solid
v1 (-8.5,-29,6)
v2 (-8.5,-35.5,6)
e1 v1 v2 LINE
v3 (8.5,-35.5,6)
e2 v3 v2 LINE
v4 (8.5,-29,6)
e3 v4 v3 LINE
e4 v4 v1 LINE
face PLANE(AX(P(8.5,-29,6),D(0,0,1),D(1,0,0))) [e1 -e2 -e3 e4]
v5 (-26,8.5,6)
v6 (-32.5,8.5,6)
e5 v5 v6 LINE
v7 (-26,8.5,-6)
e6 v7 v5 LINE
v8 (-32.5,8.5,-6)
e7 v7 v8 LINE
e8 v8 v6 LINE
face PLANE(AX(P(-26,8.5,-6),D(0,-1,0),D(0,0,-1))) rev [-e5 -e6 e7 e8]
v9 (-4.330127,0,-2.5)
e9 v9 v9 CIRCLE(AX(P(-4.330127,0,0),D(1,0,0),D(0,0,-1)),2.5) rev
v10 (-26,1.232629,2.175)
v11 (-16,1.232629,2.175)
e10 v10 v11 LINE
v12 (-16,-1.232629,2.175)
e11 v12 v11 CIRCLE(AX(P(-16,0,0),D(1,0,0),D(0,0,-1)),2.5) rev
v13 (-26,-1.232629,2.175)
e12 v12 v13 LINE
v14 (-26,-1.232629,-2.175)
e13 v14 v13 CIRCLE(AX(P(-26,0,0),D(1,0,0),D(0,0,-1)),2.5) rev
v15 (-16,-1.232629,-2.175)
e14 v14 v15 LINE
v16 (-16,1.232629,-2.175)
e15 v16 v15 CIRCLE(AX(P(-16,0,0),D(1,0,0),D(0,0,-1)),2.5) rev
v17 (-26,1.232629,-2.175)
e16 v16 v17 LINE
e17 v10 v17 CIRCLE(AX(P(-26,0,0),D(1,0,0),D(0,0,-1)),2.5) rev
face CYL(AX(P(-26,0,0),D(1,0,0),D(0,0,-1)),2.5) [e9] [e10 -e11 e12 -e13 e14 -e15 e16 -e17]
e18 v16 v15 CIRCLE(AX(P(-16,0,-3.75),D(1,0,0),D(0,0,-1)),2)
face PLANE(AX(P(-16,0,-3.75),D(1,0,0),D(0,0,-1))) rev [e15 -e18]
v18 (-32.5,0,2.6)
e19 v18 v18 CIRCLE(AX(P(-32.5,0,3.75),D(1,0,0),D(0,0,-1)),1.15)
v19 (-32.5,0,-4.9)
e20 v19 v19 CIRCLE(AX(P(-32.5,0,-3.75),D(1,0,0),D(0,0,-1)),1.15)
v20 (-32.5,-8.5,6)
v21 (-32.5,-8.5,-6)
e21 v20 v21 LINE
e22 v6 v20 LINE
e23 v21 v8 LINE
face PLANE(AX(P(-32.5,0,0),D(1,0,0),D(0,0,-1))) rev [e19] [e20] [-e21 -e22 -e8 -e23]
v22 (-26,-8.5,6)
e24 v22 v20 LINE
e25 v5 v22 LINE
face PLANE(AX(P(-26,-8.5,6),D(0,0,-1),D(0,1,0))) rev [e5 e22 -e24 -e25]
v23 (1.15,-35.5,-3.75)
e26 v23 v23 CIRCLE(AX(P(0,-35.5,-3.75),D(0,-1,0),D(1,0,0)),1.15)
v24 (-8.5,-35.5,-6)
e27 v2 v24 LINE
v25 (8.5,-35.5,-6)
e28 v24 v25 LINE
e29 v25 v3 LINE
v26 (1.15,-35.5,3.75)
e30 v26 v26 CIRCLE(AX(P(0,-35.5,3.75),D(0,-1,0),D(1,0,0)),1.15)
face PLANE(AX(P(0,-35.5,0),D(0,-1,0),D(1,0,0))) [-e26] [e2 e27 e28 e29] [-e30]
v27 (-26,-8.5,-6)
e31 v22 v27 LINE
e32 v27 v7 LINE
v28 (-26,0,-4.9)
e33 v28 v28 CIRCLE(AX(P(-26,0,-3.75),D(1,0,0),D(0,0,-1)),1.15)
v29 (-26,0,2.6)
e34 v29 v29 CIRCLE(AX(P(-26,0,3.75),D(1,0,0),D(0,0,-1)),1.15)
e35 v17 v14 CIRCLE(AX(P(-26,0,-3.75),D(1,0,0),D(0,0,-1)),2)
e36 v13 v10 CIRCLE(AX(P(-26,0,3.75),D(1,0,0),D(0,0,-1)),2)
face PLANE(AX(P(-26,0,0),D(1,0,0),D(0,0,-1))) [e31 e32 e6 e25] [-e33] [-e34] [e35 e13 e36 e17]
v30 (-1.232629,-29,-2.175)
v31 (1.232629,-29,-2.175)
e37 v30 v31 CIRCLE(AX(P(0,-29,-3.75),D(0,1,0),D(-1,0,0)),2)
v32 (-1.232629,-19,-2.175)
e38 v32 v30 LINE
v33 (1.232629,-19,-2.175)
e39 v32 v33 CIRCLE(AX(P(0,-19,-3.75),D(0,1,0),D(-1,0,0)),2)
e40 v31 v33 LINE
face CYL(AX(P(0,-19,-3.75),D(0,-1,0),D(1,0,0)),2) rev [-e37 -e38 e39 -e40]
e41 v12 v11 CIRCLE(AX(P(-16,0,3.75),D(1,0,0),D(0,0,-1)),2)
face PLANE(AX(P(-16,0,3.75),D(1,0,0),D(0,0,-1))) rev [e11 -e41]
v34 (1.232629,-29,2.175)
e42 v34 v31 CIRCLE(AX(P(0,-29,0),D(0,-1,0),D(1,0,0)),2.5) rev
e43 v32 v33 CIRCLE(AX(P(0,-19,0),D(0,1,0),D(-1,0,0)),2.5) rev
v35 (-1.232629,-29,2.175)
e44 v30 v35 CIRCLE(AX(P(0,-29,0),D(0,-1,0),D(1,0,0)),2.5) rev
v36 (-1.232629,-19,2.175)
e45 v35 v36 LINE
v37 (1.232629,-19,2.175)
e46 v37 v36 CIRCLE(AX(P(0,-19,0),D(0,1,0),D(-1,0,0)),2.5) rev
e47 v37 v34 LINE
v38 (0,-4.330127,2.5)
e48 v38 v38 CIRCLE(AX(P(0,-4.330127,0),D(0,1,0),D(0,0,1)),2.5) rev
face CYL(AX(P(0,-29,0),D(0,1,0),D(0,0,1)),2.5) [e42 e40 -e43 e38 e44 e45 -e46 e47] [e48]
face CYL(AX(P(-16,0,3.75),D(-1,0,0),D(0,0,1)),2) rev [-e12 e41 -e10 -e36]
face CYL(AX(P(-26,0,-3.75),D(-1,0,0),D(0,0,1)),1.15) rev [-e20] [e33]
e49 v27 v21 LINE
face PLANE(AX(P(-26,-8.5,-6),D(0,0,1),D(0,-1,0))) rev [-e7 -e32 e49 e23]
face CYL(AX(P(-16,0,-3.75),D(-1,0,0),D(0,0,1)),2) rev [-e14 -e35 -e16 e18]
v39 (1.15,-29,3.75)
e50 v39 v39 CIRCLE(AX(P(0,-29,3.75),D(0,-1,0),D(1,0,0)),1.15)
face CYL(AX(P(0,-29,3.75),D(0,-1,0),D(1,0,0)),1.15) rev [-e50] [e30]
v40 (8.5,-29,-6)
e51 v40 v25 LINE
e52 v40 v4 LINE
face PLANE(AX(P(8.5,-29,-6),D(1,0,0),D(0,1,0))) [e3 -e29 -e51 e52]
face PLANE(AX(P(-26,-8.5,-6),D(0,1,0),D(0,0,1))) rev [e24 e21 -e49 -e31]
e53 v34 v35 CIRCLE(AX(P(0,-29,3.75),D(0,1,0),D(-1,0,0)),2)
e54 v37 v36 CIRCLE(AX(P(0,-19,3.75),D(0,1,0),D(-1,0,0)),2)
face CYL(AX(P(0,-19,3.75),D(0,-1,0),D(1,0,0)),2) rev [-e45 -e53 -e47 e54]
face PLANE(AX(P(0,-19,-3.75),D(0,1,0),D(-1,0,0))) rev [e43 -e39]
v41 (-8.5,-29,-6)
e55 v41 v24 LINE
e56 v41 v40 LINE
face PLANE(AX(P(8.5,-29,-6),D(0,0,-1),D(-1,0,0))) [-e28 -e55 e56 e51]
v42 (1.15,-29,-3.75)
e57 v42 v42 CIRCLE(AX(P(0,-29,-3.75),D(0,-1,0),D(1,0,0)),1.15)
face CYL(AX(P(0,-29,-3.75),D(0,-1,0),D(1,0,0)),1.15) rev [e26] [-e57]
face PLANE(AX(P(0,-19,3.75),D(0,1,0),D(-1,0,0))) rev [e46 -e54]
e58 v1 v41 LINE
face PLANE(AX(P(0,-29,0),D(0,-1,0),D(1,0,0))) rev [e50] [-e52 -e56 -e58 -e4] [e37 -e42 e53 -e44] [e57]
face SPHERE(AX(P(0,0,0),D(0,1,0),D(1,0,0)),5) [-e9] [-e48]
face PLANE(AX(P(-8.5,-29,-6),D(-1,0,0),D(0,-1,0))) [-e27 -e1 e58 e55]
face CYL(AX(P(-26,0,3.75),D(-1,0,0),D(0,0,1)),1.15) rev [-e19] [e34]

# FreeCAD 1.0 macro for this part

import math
import FreeCAD as App
import Part
import Sketcher

V = App.Vector
Q = App.Units.Quantity

doc = App.newDocument("Part")
body = doc.addObject("PartDesign::Body", "Body")

sketch1 = body.newObject("Sketcher::SketchObject", "Sketch")
sketch1.AttachmentSupport = (doc.getObject("XY_Plane"), [""])
sketch1.MapMode = "FlatFace"
sketch1.addGeometry([
    Part.LineSegment(V(0, -5, 0), V(0, 5, 0)),
    Part.ArcOfCircle(Part.Circle(V(0, 0, 0), V(0, 0, 1), 5), math.radians(90), math.radians(270)),
], False)
sketch1.addConstraint([
    Sketcher.Constraint("Coincident", 0, 1, 1, 2),
    Sketcher.Constraint("Coincident", 1, 1, 0, 2),
    Sketcher.Constraint("Vertical", 0),
    Sketcher.Constraint("Coincident", 1, 3, -1, 1),
    Sketcher.Constraint("PointOnObject", 0, 1, -2),
    Sketcher.Constraint("Radius", 1, Q("5 mm")),
])
revolution = body.newObject("PartDesign::Revolution", "Revolution")
revolution.Profile = sketch1
revolution.ReferenceAxis = (sketch1, ["V_Axis"])
revolution.Angle = 360

sketch2 = body.newObject("Sketcher::SketchObject", "Sketch001")
sketch2.AttachmentSupport = (doc.getObject("XZ_Plane"), [""])
sketch2.MapMode = "FlatFace"
sketch2.addGeometry(Part.Circle(V(0, 0, 0), V(0, 0, 1), 2.5), False)
sketch2.addConstraint([
    Sketcher.Constraint("Coincident", 0, 3, -1, 1),
    Sketcher.Constraint("Diameter", 0, Q("5 mm")),
])
pad1 = body.newObject("PartDesign::Pad", "Pad")
pad1.Profile = sketch2
pad1.Length = 29

sketch3 = body.newObject("Sketcher::SketchObject", "Sketch002")
sketch3.AttachmentSupport = (doc.getObject("YZ_Plane"), [""])
sketch3.MapMode = "FlatFace"
sketch3.addGeometry(Part.Circle(V(0, 0, 0), V(0, 0, 1), 2.5), False)
sketch3.addConstraint([
    Sketcher.Constraint("Coincident", 0, 3, -1, 1),
    Sketcher.Constraint("Diameter", 0, Q("5 mm")),
])
pad2 = body.newObject("PartDesign::Pad", "Pad001")
pad2.Profile = sketch3
pad2.Length = 26
pad2.Reversed = True

sketch4 = body.newObject("Sketcher::SketchObject", "Sketch003")
sketch4.AttachmentSupport = (doc.getObject("XZ_Plane"), [""])
sketch4.MapMode = "FlatFace"
sketch4.AttachmentOffset = App.Placement(V(0, 0, 35.5), App.Rotation())
sketch4.addGeometry([
    Part.LineSegment(V(8.5, -6, 0), V(8.5, 6, 0)),
    Part.LineSegment(V(8.5, 6, 0), V(-8.5, 6, 0)),
    Part.LineSegment(V(-8.5, 6, 0), V(-8.5, -6, 0)),
    Part.LineSegment(V(-8.5, -6, 0), V(8.5, -6, 0)),
    Part.Circle(V(0, 3.75, 0), V(0, 0, 1), 1.15),
    Part.Circle(V(0, -3.75, 0), V(0, 0, 1), 1.15),
], False)
sketch4.addConstraint([
    Sketcher.Constraint("Coincident", 0, 2, 1, 1),
    Sketcher.Constraint("Coincident", 1, 2, 2, 1),
    Sketcher.Constraint("Coincident", 2, 2, 3, 1),
    Sketcher.Constraint("Coincident", 3, 2, 0, 1),
    Sketcher.Constraint("Vertical", 0),
    Sketcher.Constraint("Horizontal", 1),
    Sketcher.Constraint("Vertical", 2),
    Sketcher.Constraint("Horizontal", 3),
    Sketcher.Constraint("Equal", 4, 5),
    Sketcher.Constraint("Symmetric", 4, 3, 5, 3, -1, 1),
    Sketcher.Constraint("Symmetric", 0, 2, 2, 2, -1, 1),
    Sketcher.Constraint("PointOnObject", 4, 3, -2),
    Sketcher.Constraint("Diameter", 4, Q("2.3 mm")),
    Sketcher.Constraint("DistanceX", 1, 2, 1, 1, Q("17 mm")),
    Sketcher.Constraint("DistanceY", 0, 1, 0, 2, Q("12 mm")),
    Sketcher.Constraint("DistanceY", 5, 3, 4, 3, Q("7.5 mm")),
])
pad3 = body.newObject("PartDesign::Pad", "Pad002")
pad3.Profile = sketch4
pad3.Length = 6.5
pad3.Reversed = True

sketch5 = body.newObject("Sketcher::SketchObject", "Sketch004")
sketch5.AttachmentSupport = (doc.getObject("XZ_Plane"), [""])
sketch5.MapMode = "FlatFace"
sketch5.AttachmentOffset = App.Placement(V(0, 0, 29), App.Rotation())
sketch5.addGeometry([
    Part.Circle(V(0, -3.75, 0), V(0, 0, 1), 2),
    Part.Circle(V(0, 3.75, 0), V(0, 0, 1), 2),
], False)
sketch5.addConstraint([
    Sketcher.Constraint("Equal", 0, 1),
    Sketcher.Constraint("Symmetric", 0, 3, 1, 3, -1, 1),
    Sketcher.Constraint("PointOnObject", 0, 3, -2),
    Sketcher.Constraint("Diameter", 0, Q("4 mm")),
    Sketcher.Constraint("DistanceY", 0, 3, 1, 3, Q("7.5 mm")),
])
pocket1 = body.newObject("PartDesign::Pocket", "Pocket")
pocket1.Profile = sketch5
pocket1.Length = 10

sketch6 = body.newObject("Sketcher::SketchObject", "Sketch005")
sketch6.AttachmentSupport = (doc.getObject("YZ_Plane"), [""])
sketch6.MapMode = "FlatFace"
sketch6.AttachmentOffset = App.Placement(V(0, 0, -32.5), App.Rotation())
sketch6.addGeometry([
    Part.LineSegment(V(8.5, 6, 0), V(-8.5, 6, 0)),
    Part.LineSegment(V(-8.5, 6, 0), V(-8.5, -6, 0)),
    Part.LineSegment(V(-8.5, -6, 0), V(8.5, -6, 0)),
    Part.LineSegment(V(8.5, -6, 0), V(8.5, 6, 0)),
    Part.Circle(V(0, 3.75, 0), V(0, 0, 1), 1.15),
    Part.Circle(V(0, -3.75, 0), V(0, 0, 1), 1.15),
], False)
sketch6.addConstraint([
    Sketcher.Constraint("Coincident", 0, 2, 1, 1),
    Sketcher.Constraint("Coincident", 1, 2, 2, 1),
    Sketcher.Constraint("Coincident", 2, 2, 3, 1),
    Sketcher.Constraint("Coincident", 3, 2, 0, 1),
    Sketcher.Constraint("Horizontal", 0),
    Sketcher.Constraint("Vertical", 1),
    Sketcher.Constraint("Horizontal", 2),
    Sketcher.Constraint("Vertical", 3),
    Sketcher.Constraint("Equal", 4, 5),
    Sketcher.Constraint("Symmetric", 4, 3, 5, 3, -1, 1),
    Sketcher.Constraint("Symmetric", 0, 2, 2, 2, -1, 1),
    Sketcher.Constraint("PointOnObject", 4, 3, -2),
    Sketcher.Constraint("Diameter", 4, Q("2.3 mm")),
    Sketcher.Constraint("DistanceX", 0, 2, 0, 1, Q("17 mm")),
    Sketcher.Constraint("DistanceY", 1, 2, 1, 1, Q("12 mm")),
    Sketcher.Constraint("DistanceY", 5, 3, 4, 3, Q("7.5 mm")),
])
pad4 = body.newObject("PartDesign::Pad", "Pad003")
pad4.Profile = sketch6
pad4.Length = 6.5

sketch7 = body.newObject("Sketcher::SketchObject", "Sketch006")
sketch7.AttachmentSupport = (doc.getObject("YZ_Plane"), [""])
sketch7.MapMode = "FlatFace"
sketch7.AttachmentOffset = App.Placement(V(0, 0, -26), App.Rotation())
sketch7.addGeometry([
    Part.Circle(V(0, 3.75, 0), V(0, 0, 1), 2),
    Part.Circle(V(0, -3.75, 0), V(0, 0, 1), 2),
], False)
sketch7.addConstraint([
    Sketcher.Constraint("Equal", 0, 1),
    Sketcher.Constraint("Symmetric", 0, 3, 1, 3, -1, 1),
    Sketcher.Constraint("PointOnObject", 0, 3, -2),
    Sketcher.Constraint("Diameter", 0, Q("4 mm")),
    Sketcher.Constraint("DistanceY", 1, 3, 0, 3, Q("7.5 mm")),
])
pocket2 = body.newObject("PartDesign::Pocket", "Pocket001")
pocket2.Profile = sketch7
pocket2.Length = 10
pocket2.Reversed = True

doc.recompute()
